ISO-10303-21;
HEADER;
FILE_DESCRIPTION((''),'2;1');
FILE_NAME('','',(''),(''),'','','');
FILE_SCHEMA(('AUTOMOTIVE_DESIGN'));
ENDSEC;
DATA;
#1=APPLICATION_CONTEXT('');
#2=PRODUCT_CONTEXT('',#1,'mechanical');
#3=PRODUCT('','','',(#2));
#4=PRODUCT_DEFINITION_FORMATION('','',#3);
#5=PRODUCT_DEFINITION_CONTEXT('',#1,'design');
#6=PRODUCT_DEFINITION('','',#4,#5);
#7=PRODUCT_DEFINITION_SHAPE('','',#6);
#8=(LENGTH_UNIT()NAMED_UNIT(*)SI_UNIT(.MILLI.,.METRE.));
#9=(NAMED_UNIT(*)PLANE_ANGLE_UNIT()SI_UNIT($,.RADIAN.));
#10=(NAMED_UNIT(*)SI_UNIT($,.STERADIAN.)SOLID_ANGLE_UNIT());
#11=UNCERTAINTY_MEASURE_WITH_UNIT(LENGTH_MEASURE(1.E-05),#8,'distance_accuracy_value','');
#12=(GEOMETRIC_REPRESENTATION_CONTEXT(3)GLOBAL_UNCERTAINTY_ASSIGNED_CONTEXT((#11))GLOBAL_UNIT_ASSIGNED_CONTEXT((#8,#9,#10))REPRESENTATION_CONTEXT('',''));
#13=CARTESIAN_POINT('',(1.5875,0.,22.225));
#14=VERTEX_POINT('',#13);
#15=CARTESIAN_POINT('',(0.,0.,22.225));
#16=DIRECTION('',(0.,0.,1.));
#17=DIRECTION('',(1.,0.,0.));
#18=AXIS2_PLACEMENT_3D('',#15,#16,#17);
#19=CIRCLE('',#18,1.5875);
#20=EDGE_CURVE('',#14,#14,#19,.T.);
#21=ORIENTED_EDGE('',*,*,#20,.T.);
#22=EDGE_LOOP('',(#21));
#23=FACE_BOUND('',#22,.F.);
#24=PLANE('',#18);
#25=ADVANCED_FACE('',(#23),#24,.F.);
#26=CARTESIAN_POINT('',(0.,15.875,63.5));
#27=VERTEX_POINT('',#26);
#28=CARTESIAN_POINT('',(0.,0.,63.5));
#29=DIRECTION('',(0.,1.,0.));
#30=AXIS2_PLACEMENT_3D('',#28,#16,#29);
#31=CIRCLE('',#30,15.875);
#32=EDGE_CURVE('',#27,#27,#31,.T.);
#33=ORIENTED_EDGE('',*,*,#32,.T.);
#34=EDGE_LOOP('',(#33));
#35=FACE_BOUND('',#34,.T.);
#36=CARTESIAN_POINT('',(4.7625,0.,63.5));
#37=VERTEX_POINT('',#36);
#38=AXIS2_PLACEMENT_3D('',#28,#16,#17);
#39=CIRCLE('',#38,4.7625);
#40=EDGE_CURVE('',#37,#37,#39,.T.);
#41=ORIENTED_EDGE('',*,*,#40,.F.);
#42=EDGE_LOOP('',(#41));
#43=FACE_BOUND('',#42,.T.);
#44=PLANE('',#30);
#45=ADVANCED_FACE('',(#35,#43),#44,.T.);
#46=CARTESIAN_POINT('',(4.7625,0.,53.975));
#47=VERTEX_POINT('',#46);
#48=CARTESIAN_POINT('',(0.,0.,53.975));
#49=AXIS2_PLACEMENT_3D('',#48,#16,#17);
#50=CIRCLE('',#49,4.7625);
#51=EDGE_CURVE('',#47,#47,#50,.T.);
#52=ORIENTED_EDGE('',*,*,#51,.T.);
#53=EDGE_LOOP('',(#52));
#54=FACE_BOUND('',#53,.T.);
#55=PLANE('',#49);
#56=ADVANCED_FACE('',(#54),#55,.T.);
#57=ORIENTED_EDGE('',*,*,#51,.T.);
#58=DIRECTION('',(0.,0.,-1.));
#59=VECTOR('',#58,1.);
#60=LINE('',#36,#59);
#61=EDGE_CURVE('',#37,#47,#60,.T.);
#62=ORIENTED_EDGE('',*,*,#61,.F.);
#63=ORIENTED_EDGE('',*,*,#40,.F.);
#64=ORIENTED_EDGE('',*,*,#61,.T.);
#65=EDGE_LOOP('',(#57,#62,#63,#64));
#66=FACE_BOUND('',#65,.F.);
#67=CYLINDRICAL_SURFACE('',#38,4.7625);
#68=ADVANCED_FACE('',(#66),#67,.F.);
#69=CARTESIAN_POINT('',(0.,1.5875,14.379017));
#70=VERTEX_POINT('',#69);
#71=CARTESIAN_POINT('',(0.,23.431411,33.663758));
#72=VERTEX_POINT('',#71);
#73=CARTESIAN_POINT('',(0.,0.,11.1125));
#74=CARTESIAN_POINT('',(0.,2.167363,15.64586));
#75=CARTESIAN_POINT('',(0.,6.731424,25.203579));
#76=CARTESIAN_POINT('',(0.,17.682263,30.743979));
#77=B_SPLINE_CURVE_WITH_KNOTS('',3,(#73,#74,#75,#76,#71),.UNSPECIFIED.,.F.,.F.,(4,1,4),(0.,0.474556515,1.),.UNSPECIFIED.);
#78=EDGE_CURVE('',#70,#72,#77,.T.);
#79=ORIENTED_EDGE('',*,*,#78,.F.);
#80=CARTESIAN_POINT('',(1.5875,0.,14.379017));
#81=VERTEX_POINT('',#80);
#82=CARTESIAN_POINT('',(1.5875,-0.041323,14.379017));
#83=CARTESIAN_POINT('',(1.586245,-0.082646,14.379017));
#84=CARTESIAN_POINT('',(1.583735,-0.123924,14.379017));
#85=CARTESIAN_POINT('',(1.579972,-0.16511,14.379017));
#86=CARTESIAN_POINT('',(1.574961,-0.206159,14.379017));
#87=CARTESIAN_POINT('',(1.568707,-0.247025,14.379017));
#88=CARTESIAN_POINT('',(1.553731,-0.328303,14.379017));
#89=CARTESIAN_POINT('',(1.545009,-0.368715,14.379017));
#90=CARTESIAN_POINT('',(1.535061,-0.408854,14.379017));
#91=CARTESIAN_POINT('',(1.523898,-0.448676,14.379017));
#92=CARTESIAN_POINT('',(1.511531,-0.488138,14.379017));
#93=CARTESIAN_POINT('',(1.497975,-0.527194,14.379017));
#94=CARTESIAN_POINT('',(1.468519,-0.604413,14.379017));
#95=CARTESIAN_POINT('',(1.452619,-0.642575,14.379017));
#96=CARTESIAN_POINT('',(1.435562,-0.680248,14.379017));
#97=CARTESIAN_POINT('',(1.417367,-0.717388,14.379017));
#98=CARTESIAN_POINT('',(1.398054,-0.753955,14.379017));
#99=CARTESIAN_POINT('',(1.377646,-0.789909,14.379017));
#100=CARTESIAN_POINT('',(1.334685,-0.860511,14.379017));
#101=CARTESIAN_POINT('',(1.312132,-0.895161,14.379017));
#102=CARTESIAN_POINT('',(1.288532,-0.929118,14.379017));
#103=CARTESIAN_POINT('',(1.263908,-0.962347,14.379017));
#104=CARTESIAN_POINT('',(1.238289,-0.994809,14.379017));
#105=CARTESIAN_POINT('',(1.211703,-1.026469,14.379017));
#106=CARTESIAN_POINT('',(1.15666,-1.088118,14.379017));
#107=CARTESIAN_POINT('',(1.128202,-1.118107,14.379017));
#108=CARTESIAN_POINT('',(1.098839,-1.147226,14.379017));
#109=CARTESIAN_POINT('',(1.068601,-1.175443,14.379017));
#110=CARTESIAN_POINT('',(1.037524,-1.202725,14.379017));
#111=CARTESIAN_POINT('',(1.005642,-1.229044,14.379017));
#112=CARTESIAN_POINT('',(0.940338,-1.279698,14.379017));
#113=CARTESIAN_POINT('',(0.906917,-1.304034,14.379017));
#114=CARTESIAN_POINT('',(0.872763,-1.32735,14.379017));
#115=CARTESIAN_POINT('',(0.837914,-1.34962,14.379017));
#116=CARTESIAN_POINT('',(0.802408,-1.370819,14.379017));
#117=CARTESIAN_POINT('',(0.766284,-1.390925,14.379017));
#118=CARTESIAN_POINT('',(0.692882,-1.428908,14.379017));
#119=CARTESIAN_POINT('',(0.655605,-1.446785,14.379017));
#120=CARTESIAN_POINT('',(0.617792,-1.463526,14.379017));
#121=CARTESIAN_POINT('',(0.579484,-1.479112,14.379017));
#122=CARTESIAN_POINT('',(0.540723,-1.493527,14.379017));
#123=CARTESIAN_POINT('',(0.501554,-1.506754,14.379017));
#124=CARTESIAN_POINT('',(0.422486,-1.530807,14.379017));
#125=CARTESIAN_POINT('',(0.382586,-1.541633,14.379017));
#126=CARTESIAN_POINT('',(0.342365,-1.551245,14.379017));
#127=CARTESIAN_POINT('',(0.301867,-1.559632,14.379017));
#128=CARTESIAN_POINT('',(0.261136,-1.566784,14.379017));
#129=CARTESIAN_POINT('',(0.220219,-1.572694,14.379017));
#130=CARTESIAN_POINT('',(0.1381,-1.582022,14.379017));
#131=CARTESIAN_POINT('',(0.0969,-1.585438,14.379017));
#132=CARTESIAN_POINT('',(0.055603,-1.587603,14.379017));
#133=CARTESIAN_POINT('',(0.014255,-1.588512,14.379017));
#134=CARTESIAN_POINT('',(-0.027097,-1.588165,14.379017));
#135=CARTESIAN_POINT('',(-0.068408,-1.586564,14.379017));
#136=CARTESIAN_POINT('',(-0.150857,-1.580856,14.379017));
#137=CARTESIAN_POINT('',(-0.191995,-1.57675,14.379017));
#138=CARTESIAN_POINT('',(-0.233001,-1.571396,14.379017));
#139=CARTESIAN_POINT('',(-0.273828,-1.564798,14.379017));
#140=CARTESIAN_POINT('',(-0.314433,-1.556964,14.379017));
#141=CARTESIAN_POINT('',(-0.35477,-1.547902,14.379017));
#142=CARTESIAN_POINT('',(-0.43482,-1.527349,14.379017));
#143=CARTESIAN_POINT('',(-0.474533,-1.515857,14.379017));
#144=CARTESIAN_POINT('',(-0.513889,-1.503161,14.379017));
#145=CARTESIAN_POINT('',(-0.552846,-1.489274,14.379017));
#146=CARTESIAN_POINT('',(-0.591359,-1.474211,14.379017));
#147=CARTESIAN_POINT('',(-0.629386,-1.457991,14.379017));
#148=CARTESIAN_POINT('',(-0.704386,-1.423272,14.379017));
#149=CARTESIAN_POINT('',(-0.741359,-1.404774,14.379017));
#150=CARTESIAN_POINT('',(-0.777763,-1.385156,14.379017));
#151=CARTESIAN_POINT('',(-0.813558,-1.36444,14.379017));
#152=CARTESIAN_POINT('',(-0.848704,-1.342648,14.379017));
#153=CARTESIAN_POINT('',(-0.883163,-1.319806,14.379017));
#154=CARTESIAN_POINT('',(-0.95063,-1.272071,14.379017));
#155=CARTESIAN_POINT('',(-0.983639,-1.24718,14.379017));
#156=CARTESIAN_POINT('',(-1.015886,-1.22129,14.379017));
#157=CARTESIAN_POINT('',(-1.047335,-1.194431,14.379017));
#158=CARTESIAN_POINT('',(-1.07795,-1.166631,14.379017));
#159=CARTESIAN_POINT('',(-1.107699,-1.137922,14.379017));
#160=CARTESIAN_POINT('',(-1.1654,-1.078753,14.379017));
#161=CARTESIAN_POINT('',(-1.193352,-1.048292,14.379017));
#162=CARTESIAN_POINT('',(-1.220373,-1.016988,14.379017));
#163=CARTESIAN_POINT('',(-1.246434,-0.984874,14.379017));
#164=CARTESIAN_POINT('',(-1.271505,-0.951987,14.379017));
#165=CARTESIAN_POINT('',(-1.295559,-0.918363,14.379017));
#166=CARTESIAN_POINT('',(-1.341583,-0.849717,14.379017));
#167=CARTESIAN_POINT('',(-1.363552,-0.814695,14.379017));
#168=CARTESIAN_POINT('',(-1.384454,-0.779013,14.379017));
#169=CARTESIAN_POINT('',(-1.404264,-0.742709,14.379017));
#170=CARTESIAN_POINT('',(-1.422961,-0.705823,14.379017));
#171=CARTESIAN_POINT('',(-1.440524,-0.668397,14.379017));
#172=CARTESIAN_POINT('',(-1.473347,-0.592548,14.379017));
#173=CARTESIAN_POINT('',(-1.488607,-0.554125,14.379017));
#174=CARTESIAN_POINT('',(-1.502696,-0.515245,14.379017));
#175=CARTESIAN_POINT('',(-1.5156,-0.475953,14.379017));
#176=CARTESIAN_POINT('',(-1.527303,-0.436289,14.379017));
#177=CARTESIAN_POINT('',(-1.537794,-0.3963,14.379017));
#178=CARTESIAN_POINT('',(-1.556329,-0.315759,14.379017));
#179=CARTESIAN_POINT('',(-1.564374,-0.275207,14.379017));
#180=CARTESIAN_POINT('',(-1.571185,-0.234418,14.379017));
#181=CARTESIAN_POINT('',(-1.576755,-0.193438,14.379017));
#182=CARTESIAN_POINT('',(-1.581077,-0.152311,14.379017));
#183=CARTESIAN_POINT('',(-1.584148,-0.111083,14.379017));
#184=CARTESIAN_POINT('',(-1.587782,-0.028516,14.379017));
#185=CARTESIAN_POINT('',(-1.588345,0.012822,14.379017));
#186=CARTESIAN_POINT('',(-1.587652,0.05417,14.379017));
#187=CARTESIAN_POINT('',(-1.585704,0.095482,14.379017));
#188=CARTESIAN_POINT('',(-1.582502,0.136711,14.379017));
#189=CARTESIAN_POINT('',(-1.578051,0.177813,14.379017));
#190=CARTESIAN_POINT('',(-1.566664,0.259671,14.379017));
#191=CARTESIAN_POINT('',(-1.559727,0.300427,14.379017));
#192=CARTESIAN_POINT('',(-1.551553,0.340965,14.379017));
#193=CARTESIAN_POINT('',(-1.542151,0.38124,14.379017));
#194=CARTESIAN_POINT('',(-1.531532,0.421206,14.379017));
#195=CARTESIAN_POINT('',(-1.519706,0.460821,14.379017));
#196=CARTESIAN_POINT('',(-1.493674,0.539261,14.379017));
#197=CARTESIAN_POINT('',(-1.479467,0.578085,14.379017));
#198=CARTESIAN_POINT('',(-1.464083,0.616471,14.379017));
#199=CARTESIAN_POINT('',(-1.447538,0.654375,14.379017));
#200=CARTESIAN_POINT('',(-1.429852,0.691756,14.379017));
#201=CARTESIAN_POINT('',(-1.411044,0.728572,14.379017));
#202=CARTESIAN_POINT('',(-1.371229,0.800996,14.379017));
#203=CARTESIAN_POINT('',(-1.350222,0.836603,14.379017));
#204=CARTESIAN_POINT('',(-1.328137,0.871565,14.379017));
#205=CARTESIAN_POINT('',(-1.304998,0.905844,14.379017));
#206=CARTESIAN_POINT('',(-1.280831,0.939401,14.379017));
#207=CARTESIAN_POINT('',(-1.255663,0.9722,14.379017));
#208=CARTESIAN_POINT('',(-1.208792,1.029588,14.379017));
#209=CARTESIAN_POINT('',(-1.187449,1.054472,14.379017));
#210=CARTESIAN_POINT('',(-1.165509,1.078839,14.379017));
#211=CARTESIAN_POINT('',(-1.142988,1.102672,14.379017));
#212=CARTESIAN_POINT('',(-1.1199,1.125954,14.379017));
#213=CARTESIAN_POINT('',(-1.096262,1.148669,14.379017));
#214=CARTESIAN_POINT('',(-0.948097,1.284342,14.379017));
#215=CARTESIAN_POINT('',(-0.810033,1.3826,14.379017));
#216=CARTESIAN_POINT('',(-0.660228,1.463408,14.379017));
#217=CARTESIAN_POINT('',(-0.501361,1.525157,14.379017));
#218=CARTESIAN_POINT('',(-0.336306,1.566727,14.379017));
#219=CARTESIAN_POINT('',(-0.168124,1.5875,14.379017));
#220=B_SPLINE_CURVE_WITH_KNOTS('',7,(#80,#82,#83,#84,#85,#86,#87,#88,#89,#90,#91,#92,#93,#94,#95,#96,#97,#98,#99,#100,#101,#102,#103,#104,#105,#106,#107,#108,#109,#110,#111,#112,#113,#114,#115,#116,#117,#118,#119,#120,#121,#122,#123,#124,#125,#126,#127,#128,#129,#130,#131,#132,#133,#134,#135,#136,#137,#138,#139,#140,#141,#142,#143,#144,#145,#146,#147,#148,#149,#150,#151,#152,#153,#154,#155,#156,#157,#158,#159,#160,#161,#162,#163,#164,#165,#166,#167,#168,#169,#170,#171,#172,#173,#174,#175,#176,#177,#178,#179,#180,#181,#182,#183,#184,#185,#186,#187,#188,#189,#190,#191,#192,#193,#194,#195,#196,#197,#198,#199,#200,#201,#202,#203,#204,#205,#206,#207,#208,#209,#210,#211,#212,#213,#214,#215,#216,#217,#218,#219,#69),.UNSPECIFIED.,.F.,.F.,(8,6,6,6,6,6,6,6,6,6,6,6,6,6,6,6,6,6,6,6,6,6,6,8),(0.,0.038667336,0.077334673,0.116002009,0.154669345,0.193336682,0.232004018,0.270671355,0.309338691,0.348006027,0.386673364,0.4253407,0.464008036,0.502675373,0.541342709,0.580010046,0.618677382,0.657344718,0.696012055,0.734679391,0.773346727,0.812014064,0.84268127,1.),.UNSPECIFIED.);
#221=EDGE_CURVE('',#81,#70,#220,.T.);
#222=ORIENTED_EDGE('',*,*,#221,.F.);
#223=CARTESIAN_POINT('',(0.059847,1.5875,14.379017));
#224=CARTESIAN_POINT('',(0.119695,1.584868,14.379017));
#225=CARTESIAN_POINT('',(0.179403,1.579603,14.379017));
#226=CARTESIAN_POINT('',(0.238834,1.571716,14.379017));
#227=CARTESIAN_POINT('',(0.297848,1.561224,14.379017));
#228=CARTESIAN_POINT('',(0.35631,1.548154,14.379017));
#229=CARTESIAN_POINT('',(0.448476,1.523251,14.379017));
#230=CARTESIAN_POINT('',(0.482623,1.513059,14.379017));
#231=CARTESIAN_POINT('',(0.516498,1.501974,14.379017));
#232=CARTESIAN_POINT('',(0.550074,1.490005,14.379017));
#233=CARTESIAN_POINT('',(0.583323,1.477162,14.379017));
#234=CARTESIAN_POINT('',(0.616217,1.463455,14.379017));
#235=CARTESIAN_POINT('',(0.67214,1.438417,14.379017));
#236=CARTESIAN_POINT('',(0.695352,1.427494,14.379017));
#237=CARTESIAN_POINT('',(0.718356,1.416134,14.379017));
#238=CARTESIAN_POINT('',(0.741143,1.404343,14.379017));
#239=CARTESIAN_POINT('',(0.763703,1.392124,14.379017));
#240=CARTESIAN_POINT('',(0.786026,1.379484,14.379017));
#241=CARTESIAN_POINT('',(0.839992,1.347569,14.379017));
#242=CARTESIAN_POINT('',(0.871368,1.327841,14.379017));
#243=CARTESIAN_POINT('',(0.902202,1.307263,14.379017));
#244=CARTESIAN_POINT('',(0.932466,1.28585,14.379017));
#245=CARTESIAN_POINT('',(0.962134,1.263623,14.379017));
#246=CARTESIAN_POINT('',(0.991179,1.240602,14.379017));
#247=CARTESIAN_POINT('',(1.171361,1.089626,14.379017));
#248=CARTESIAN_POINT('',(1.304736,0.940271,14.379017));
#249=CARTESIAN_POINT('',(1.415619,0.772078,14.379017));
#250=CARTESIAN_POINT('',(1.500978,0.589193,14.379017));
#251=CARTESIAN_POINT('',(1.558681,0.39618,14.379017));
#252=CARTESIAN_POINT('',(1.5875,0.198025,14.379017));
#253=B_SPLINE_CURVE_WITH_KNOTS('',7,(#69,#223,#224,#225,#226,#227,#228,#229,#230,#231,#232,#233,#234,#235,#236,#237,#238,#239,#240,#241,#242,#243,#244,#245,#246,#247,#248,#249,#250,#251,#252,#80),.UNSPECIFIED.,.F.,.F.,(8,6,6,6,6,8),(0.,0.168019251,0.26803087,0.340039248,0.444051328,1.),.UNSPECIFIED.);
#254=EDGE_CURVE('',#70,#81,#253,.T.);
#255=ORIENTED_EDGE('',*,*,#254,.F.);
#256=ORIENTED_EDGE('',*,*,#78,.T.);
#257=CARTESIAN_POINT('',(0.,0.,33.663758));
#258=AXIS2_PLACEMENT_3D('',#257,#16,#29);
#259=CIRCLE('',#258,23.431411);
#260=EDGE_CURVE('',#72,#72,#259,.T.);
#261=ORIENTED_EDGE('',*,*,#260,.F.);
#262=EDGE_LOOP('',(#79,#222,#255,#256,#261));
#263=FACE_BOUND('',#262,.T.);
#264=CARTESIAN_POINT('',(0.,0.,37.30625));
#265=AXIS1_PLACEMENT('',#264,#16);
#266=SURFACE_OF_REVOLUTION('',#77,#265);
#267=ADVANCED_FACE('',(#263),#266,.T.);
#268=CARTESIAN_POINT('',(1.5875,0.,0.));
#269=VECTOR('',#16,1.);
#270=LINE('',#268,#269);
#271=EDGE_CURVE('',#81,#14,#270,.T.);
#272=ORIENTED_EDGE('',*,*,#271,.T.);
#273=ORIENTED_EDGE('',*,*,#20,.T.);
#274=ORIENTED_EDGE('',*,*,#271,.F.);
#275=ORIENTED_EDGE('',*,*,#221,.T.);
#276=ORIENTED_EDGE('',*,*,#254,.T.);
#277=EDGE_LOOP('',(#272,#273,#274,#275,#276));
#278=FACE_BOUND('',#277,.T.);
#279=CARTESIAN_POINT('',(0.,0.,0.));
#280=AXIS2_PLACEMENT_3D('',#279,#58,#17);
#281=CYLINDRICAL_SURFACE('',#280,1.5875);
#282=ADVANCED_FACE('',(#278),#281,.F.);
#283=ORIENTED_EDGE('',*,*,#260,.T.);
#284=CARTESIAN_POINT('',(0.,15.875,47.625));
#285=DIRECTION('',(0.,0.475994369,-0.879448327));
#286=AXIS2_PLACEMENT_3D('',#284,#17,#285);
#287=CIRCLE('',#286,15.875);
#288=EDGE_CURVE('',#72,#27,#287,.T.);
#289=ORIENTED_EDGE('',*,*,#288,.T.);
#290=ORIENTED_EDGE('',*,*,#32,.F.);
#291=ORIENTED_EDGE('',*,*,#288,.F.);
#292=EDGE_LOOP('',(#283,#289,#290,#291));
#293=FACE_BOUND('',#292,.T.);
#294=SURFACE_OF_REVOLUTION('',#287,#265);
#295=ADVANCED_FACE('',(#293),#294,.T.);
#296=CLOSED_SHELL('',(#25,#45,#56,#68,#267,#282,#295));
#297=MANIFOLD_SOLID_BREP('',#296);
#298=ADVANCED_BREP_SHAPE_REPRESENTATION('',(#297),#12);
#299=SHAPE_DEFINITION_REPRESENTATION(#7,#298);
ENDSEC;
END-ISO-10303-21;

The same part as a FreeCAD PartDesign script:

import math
import FreeCAD as App
import Part
import Sketcher
Q = App.Units.Quantity

doc = App.newDocument("Part")
body = doc.addObject("PartDesign::Body", "Body")

# Sketch on YZ plane
sketch1 = body.newObject("Sketcher::SketchObject", "Sketch")
sketch1.AttachmentSupport = (doc.getObject("YZ_Plane"), [""])
sketch1.MapMode = "FlatFace"
sketch1.addGeometry([
    Part.LineSegment(App.Vector(0, 63.5, 0), App.Vector(0, 11.1125, 0)),
    Part.BSplineCurve([App.Vector(0, 11.1125, 0), App.Vector(2.167363, 15.64586, 0), App.Vector(6.731424, 25.203579, 0), App.Vector(17.682263, 30.743979, 0), App.Vector(23.431411, 33.663758, 0)], [4, 1, 4], [0, 0.474556515, 1], False, 3, [1, 1, 1, 1, 1], False),
    Part.ArcOfCircle(Part.Circle(App.Vector(15.875, 47.625, 0), App.Vector(0, 0, 1), 15.875), math.radians(-61.575887), math.radians(90)),
    Part.LineSegment(App.Vector(15.875, 63.5, 0), App.Vector(0, 63.5, 0)),
], False)
sketch1.addConstraint([
    Sketcher.Constraint("Block", 1),
    Sketcher.Constraint("Coincident", 0, 2, 1, 1),
    Sketcher.Constraint("Coincident", 1, 2, 2, 1),
    Sketcher.Constraint("Tangent", 2, 2, 3, 1),
    Sketcher.Constraint("Coincident", 3, 2, 0, 1),
    Sketcher.Constraint("Vertical", 0),
    Sketcher.Constraint("Horizontal", 3),
    Sketcher.Constraint("Radius", 2, Q("0.625 in")),
    Sketcher.Constraint("DistanceY", -1, 1, 2, 2, Q("2.5 in")),
])
revolution = body.newObject("PartDesign::Revolution", "Revolution")
revolution.Profile = sketch1
revolution.ReferenceAxis = (sketch1, ["V_Axis"])
revolution.Angle = 360

# Sketch on XY plane
sketch2 = body.newObject("Sketcher::SketchObject", "Sketch001")
sketch2.AttachmentSupport = (doc.getObject("XY_Plane"), [""])
sketch2.MapMode = "FlatFace"
sketch2.AttachmentOffset = App.Placement(App.Vector(0, 0, 2.5 * 25.4), App.Rotation())
sketch2.addGeometry(Part.Circle(App.Vector(0, 0, 0), App.Vector(0, 0, 1), 4.8), False)
sketch2.addConstraint([
    Sketcher.Constraint("Coincident", 0, 3, -1, 1),
    Sketcher.Constraint("Diameter", 0, Q("0.375 in")),
])
pocket1 = body.newObject("PartDesign::Pocket", "Pocket")
pocket1.Profile = sketch2
pocket1.Length = Q("0.375 in")

# Sketch on XY plane
sketch3 = body.newObject("Sketcher::SketchObject", "Sketch002")
sketch3.AttachmentSupport = (doc.getObject("XY_Plane"), [""])
sketch3.MapMode = "FlatFace"
sketch3.addGeometry(Part.Circle(App.Vector(0, 0, 0), App.Vector(0, 0, 1), 1.6), False)
sketch3.addConstraint([
    Sketcher.Constraint("Coincident", 0, 3, -1, 1),
    Sketcher.Constraint("Diameter", 0, Q("0.125 in")),
])
pocket2 = body.newObject("PartDesign::Pocket", "Pocket001")
pocket2.Profile = sketch3
pocket2.Length = Q("0.875 in")
pocket2.Reversed = True

doc.recompute()
